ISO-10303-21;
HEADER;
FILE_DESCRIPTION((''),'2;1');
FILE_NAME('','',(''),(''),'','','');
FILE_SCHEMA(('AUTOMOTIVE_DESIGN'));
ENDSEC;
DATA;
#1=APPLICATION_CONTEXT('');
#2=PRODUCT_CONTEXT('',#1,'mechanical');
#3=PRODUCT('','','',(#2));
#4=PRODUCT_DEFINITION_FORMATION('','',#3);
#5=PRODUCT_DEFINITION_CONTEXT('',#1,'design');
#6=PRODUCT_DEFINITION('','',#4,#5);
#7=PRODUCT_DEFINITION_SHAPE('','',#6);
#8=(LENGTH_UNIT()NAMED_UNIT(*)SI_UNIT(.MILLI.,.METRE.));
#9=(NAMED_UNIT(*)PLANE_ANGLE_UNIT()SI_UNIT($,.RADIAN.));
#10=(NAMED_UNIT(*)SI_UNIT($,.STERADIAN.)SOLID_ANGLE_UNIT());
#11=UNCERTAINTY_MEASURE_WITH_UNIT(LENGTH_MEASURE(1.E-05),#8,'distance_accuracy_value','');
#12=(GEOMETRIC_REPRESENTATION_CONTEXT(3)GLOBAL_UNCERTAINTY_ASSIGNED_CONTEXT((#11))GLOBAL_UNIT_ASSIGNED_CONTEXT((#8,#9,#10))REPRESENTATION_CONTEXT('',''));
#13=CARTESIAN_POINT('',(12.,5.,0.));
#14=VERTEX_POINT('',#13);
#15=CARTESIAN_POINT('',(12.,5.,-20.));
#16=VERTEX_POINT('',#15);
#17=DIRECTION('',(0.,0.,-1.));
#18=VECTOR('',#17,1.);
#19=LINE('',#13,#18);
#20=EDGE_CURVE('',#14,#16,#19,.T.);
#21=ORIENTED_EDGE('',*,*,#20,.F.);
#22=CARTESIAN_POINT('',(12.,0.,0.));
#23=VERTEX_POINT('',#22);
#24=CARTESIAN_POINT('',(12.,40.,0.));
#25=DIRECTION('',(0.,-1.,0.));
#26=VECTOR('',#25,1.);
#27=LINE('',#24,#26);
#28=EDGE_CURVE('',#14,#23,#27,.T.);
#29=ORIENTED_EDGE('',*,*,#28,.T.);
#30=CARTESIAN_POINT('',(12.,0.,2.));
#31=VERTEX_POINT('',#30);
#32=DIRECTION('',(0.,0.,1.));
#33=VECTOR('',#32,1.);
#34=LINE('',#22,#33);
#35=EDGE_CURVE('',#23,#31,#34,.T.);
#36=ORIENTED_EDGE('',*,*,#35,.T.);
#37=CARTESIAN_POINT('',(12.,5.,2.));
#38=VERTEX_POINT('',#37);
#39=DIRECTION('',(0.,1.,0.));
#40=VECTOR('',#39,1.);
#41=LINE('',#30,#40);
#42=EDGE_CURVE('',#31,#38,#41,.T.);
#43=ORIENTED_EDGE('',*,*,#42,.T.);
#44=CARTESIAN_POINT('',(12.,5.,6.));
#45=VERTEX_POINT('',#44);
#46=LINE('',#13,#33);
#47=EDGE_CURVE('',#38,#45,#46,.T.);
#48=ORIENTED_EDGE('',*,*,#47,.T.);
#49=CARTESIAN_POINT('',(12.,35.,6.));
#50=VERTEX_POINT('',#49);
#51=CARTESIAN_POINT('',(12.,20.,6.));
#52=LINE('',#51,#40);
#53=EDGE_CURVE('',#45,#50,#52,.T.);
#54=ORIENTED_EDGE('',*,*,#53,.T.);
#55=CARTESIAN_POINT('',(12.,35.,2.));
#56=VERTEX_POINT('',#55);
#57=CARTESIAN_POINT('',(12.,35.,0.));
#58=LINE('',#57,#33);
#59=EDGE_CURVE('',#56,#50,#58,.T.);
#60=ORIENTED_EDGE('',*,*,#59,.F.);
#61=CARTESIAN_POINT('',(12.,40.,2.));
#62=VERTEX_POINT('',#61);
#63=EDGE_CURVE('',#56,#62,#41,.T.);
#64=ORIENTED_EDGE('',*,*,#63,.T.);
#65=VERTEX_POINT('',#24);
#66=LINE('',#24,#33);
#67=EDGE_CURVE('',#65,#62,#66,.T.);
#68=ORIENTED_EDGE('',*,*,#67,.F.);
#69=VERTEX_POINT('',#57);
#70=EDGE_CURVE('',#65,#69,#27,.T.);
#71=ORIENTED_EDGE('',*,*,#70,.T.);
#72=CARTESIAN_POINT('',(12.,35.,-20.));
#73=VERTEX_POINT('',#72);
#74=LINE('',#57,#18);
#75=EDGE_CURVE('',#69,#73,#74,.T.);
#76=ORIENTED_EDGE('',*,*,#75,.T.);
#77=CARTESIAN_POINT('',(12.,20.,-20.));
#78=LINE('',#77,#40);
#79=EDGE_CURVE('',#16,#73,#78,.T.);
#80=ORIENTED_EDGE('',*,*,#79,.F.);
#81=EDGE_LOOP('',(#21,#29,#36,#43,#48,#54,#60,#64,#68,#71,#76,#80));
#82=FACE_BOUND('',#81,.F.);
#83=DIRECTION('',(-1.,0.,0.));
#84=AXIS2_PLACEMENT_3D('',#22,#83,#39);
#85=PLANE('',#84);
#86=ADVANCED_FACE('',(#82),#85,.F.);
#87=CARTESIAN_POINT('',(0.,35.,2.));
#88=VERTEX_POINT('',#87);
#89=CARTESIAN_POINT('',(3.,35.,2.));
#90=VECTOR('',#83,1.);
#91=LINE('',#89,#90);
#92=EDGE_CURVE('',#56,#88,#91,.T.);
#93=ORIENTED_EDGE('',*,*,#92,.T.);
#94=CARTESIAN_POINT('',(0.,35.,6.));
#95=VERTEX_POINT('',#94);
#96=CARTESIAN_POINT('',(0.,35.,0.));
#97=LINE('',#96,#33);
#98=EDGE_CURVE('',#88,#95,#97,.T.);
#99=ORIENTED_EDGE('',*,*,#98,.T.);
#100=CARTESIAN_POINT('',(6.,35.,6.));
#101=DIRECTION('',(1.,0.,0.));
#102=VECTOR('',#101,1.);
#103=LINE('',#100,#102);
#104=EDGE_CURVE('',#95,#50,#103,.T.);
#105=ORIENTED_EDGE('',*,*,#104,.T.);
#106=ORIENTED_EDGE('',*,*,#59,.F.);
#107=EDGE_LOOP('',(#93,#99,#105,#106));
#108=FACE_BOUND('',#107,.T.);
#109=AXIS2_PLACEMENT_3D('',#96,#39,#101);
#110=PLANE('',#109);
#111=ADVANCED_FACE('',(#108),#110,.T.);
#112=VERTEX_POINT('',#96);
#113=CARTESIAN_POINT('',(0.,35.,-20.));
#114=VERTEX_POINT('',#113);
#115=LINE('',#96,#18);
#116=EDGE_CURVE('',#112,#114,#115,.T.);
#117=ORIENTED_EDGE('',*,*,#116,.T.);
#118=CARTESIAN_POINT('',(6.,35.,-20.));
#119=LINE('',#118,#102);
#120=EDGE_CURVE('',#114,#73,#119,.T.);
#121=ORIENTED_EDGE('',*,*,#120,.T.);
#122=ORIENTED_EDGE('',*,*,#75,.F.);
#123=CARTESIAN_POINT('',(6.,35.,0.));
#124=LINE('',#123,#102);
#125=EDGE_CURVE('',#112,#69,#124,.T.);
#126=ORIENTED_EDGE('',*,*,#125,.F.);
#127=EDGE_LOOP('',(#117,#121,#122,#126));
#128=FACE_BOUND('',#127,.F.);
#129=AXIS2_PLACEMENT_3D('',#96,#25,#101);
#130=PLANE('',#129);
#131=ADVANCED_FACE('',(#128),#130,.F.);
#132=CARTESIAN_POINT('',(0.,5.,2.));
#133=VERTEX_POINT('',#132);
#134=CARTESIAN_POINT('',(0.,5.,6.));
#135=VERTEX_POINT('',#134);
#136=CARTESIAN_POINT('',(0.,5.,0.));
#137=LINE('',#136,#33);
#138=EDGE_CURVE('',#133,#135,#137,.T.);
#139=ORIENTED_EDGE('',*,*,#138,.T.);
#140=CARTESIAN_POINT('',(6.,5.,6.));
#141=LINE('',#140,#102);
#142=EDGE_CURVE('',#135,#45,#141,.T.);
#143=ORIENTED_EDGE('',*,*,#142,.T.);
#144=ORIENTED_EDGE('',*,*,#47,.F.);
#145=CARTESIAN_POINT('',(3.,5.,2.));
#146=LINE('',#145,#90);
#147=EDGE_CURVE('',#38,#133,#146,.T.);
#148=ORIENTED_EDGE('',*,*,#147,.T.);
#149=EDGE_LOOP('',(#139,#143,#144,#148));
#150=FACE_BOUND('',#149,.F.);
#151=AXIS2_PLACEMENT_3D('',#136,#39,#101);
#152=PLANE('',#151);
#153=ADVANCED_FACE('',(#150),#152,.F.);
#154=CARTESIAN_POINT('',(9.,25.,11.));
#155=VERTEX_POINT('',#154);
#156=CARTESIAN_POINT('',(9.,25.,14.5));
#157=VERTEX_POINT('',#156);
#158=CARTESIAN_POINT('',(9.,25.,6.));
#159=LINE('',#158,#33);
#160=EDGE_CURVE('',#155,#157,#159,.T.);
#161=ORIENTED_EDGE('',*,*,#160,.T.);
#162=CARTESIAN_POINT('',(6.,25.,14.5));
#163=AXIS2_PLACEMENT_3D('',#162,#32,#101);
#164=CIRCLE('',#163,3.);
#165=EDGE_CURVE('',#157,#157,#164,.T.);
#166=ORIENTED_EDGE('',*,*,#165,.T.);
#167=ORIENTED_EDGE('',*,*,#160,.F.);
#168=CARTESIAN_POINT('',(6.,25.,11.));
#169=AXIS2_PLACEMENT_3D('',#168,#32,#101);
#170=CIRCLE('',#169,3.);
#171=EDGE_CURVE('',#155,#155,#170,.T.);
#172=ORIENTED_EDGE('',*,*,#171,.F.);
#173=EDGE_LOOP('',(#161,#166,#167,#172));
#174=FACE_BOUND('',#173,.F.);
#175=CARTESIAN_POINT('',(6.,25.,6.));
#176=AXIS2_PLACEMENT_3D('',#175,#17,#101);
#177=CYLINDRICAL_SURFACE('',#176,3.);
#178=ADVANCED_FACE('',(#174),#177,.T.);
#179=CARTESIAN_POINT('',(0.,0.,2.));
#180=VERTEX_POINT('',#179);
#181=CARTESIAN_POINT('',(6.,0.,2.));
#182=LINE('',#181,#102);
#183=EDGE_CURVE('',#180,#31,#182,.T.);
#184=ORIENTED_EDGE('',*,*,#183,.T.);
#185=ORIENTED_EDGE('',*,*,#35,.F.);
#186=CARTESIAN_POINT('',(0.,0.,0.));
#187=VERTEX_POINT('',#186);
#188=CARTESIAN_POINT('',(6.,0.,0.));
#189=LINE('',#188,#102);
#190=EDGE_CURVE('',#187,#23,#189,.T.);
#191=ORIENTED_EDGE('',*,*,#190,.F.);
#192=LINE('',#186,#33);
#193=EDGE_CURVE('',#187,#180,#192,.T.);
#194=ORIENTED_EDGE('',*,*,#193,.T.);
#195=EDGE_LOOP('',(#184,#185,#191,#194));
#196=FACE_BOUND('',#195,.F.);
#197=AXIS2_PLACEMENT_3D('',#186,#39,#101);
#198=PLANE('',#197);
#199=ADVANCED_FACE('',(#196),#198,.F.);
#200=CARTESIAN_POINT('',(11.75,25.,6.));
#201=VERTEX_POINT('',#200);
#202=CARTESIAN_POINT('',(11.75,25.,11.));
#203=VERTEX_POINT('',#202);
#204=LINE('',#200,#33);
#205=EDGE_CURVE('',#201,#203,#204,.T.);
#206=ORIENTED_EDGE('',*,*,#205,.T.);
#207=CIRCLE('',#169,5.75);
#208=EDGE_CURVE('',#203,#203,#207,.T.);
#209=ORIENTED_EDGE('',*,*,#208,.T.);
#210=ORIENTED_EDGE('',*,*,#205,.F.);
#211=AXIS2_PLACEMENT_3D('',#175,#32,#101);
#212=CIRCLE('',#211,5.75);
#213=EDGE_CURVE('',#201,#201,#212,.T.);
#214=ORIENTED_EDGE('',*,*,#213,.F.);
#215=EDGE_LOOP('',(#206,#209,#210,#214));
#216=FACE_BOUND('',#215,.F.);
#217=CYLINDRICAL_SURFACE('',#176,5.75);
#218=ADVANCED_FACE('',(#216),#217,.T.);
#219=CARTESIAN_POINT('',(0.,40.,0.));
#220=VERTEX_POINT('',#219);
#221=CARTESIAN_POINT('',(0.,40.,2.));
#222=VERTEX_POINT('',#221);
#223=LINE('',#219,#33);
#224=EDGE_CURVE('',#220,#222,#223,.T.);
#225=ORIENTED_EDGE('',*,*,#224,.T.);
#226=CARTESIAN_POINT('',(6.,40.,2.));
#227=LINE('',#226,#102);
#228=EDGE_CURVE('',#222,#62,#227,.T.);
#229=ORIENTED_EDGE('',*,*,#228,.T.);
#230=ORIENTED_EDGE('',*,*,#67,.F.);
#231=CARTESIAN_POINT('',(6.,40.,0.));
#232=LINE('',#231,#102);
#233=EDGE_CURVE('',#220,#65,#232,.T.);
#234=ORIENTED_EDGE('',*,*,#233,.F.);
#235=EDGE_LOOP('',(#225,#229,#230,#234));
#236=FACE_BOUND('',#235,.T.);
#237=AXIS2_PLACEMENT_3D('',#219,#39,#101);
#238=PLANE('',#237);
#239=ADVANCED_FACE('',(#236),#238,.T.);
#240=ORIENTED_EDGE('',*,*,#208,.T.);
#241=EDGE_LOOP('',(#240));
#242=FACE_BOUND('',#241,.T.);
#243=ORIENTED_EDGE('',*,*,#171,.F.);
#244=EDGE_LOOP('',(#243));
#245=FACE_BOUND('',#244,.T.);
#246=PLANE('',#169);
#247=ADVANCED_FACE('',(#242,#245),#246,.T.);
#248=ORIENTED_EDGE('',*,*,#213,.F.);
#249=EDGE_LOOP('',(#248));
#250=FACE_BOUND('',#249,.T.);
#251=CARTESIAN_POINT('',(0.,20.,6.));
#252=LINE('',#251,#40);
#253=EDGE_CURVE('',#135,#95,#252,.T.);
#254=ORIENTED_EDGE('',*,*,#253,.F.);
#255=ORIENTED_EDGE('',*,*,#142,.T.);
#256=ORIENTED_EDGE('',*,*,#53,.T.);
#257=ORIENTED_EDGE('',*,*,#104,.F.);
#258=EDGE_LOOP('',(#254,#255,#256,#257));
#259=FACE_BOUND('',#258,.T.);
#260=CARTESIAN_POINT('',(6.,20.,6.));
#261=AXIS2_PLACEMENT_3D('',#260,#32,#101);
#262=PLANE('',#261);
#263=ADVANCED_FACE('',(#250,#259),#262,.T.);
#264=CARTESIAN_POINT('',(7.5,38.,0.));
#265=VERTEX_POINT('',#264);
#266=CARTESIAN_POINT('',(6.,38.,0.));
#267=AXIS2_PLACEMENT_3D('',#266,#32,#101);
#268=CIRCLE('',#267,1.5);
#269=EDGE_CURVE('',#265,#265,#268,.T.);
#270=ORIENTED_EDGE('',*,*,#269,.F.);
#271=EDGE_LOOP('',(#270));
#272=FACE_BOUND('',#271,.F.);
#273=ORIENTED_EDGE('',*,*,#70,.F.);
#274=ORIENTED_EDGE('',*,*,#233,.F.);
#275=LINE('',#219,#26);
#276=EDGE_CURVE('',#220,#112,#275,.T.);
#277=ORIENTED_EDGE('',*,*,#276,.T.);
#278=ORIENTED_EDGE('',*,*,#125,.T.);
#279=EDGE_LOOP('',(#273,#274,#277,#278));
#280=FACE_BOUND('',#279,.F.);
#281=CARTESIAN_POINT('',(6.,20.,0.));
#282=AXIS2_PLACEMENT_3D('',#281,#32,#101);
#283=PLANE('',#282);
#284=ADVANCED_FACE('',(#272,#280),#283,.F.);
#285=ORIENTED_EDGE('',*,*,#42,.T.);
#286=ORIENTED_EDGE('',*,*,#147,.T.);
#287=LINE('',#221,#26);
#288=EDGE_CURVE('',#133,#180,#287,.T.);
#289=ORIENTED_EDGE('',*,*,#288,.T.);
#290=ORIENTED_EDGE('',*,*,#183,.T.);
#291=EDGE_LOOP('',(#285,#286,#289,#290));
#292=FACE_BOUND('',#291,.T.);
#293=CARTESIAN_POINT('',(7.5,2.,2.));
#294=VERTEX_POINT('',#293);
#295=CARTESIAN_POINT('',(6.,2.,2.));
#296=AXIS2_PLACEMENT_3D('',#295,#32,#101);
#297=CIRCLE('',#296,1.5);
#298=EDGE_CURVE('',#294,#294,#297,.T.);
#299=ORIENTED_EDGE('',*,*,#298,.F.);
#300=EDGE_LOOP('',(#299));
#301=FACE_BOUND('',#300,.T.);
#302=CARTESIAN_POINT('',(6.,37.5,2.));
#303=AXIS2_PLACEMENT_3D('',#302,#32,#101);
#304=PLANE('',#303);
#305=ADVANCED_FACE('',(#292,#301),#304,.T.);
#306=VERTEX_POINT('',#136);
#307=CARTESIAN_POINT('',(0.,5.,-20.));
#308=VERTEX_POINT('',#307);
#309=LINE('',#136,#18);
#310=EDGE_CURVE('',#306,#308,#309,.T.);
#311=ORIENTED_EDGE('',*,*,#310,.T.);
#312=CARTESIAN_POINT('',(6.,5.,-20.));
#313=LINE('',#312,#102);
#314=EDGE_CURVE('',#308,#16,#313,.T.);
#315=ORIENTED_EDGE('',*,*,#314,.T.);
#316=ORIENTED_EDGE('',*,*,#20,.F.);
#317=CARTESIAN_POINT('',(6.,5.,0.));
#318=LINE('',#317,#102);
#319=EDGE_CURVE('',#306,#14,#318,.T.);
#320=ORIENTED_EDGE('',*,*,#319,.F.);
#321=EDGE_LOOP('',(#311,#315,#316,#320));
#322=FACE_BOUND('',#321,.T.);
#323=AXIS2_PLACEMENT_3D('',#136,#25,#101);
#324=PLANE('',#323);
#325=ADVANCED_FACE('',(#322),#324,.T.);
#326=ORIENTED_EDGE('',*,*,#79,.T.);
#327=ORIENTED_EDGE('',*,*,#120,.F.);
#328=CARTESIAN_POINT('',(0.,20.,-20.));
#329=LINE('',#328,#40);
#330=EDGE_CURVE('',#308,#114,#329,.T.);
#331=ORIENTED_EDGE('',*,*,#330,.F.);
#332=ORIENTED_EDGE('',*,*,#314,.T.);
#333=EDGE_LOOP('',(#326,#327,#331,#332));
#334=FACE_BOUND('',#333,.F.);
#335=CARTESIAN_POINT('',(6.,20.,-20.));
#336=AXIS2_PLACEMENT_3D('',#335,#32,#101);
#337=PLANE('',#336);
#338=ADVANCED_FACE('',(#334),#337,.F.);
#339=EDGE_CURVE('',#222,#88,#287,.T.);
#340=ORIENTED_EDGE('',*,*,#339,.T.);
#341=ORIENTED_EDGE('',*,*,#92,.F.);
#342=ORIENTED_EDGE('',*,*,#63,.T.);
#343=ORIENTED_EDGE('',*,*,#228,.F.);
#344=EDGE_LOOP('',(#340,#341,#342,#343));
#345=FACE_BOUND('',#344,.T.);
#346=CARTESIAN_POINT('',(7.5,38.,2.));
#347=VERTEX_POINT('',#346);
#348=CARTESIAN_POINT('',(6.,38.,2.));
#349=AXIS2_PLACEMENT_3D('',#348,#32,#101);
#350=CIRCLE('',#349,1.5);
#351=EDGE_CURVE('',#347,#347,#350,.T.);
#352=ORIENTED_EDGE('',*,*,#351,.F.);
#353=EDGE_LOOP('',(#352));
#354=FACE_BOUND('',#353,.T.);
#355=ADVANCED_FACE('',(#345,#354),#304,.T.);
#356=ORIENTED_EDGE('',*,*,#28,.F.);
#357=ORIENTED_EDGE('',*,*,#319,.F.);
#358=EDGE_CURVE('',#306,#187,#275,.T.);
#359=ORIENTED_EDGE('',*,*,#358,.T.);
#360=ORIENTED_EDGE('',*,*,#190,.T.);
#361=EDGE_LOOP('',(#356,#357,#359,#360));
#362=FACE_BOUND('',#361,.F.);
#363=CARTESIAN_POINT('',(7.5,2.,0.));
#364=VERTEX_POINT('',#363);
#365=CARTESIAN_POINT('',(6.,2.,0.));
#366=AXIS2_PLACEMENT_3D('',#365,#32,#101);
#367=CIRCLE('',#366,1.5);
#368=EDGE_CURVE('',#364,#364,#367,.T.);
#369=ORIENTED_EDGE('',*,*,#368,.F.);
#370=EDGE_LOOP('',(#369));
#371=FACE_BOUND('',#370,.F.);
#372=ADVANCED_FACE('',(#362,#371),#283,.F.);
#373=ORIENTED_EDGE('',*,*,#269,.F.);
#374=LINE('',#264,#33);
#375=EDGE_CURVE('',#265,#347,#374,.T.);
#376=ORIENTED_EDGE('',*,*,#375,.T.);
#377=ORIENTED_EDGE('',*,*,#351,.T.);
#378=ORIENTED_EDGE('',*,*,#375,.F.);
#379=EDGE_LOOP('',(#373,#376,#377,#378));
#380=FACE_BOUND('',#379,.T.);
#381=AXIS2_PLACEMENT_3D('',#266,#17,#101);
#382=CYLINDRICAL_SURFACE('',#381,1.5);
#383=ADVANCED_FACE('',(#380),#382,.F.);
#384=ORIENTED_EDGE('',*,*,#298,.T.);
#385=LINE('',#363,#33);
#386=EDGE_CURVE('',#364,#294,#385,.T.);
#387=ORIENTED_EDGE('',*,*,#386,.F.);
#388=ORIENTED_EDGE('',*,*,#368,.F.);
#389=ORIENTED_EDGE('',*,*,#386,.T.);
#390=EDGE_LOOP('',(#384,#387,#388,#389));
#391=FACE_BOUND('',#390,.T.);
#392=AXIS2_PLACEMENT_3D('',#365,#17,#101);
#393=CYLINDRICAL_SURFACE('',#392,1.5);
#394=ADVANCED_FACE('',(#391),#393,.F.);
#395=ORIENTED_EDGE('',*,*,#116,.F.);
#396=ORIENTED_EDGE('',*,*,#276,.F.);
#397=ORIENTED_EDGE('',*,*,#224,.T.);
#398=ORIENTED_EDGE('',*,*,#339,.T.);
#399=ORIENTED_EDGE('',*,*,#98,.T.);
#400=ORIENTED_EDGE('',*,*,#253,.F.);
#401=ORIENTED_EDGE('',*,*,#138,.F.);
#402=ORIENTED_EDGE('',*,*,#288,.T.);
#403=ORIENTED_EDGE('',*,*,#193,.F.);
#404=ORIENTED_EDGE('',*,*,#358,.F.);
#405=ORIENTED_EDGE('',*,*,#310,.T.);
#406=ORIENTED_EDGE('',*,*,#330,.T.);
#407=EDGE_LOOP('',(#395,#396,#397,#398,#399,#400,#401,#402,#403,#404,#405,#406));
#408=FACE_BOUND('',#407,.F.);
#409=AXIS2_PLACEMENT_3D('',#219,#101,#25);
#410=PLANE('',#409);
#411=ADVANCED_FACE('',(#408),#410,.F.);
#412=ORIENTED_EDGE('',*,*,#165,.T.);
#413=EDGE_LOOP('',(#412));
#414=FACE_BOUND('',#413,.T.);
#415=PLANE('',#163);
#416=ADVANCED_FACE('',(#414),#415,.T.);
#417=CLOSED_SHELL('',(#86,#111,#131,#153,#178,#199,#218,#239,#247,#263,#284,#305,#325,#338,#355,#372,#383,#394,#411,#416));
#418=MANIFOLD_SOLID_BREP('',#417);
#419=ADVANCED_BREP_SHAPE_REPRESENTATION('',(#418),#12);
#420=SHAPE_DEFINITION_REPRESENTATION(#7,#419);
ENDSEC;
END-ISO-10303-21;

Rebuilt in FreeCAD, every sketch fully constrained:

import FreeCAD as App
import Part
import Sketcher

V = App.Vector
Q = App.Units.Quantity


def add_polygon(sketch, points):
    """Adds a closed chain of lines whose ends are joined by coincident constraints."""
    first, n = sketch.GeometryCount, len(points)
    for a, b in zip(points, points[1:] + points[:1]):
        sketch.addGeometry(Part.LineSegment(App.Vector(*a, 0), App.Vector(*b, 0)), False)
    for i in range(n):
        sketch.addConstraint(Sketcher.Constraint("Coincident", first + i, 2, first + (i + 1) % n, 1))

doc = App.newDocument("Part")
params = doc.addObject("Spreadsheet::Sheet", "Params")
for row, (alias, value) in enumerate([
    ("sketch1_diameter", "3 mm"),
    ("sketch1_width", "12 mm"),
    ("sketch1_height", "40 mm"),
    ("pad1_length", "2 mm"),
    ("sketch2_width", "12 mm"),
    ("sketch2_height", "30 mm"),
    ("pad2_length", "6 mm"),
    ("sketch3_width", "12 mm"),
    ("sketch3_height", "30 mm"),
    ("pad3_length", "20 mm"),
    ("sketch4_diameter", "6 mm"),
    ("pad4_length", "8.5 mm"),
    ("sketch5_diameter", "6 mm"),
    ("sketch5_diameter2", "11.5 mm"),
    ("pad5_length", "5 mm"),
], start=1):
    params.set(f"A{row}", alias)
    params.set(f"B{row}", "=" + value)
    params.setAlias(f"B{row}", alias)

body = doc.addObject("PartDesign::Body", "Body")

# Sketch on XY plane
sketch1 = doc.addObject("Sketcher::SketchObject", "Sketch")
body.addObject(sketch1)
sketch1.AttachmentSupport = (doc.XY_Plane, [""])
sketch1.MapMode = "FlatFace"
add_polygon(sketch1, [(0, 40), (0, 0), (12, 0), (12, 40)])  # lines 0-3
sketch1.addGeometry(Part.Circle(V(6, 2, 0), V(0, 0, 1), 1.5), False)  # 4
sketch1.addGeometry(Part.Circle(V(6, 38, 0), V(0, 0, 1), 1.5), False)  # 5
sketch1.addConstraint([
    Sketcher.Constraint("Vertical", 0),
    Sketcher.Constraint("Horizontal", 1),
    Sketcher.Constraint("Vertical", 2),
    Sketcher.Constraint("Horizontal", 3),
    Sketcher.Constraint("Coincident", 0, 2, -1, 1),
    Sketcher.Constraint("Equal", 4, 5),
    Sketcher.Constraint("Vertical", 4, 3, 5, 3),
    Sketcher.Constraint("Diameter", 4, Q("3 mm")),
    Sketcher.Constraint("DistanceX", 1, 1, 1, 2, Q("12 mm")),
    Sketcher.Constraint("DistanceY", 0, 2, 0, 1, Q("40 mm")),
    Sketcher.Constraint("DistanceX", -1, 1, 4, 3, Q("6 mm")),
    Sketcher.Constraint("DistanceY", -1, 1, 4, 3, Q("2 mm")),
    Sketcher.Constraint("DistanceY", -1, 1, 5, 3, Q("38 mm")),
])
sketch1.setExpression("Constraints[11]", "Params.sketch1_diameter")
sketch1.setExpression("Constraints[12]", "Params.sketch1_width")
sketch1.setExpression("Constraints[13]", "Params.sketch1_height")
pad1 = doc.addObject("PartDesign::Pad", "Pad")
body.addObject(pad1)
pad1.Profile = sketch1
pad1.setExpression("Length", "Params.pad1_length")

# Sketch on XY plane
sketch2 = doc.addObject("Sketcher::SketchObject", "Sketch001")
body.addObject(sketch2)
sketch2.AttachmentSupport = (doc.XY_Plane, [""])
sketch2.MapMode = "FlatFace"
add_polygon(sketch2, [(0, 35), (0, 5), (12, 5), (12, 35)])  # lines 0-3
sketch2.addConstraint([
    Sketcher.Constraint("Vertical", 0),
    Sketcher.Constraint("Horizontal", 1),
    Sketcher.Constraint("Vertical", 2),
    Sketcher.Constraint("Horizontal", 3),
    Sketcher.Constraint("PointOnObject", 0, 2, -2),
    Sketcher.Constraint("DistanceX", 1, 1, 1, 2, Q("12 mm")),
    Sketcher.Constraint("DistanceY", 0, 2, 0, 1, Q("30 mm")),
    Sketcher.Constraint("DistanceY", -1, 1, 0, 2, Q("5 mm")),
])
sketch2.setExpression("Constraints[9]", "Params.sketch2_width")
sketch2.setExpression("Constraints[10]", "Params.sketch2_height")
pad2 = doc.addObject("PartDesign::Pad", "Pad001")
body.addObject(pad2)
pad2.Profile = sketch2
pad2.setExpression("Length", "Params.pad2_length")

# Sketch on XY plane
sketch3 = doc.addObject("Sketcher::SketchObject", "Sketch002")
body.addObject(sketch3)
sketch3.AttachmentSupport = (doc.XY_Plane, [""])
sketch3.MapMode = "FlatFace"
add_polygon(sketch3, [(0, 35), (0, 5), (12, 5), (12, 35)])  # lines 0-3
sketch3.addConstraint([
    Sketcher.Constraint("Vertical", 0),
    Sketcher.Constraint("Horizontal", 1),
    Sketcher.Constraint("Vertical", 2),
    Sketcher.Constraint("Horizontal", 3),
    Sketcher.Constraint("PointOnObject", 0, 2, -2),
    Sketcher.Constraint("DistanceX", 1, 1, 1, 2, Q("12 mm")),
    Sketcher.Constraint("DistanceY", 0, 2, 0, 1, Q("30 mm")),
    Sketcher.Constraint("DistanceY", -1, 1, 0, 2, Q("5 mm")),
])
sketch3.setExpression("Constraints[9]", "Params.sketch3_width")
sketch3.setExpression("Constraints[10]", "Params.sketch3_height")
pad3 = doc.addObject("PartDesign::Pad", "Pad002")
body.addObject(pad3)
pad3.Profile = sketch3
pad3.setExpression("Length", "Params.pad3_length")
pad3.Reversed = True

# Sketch on XY plane
sketch4 = doc.addObject("Sketcher::SketchObject", "Sketch003")
body.addObject(sketch4)
sketch4.AttachmentSupport = (doc.XY_Plane, [""])
sketch4.MapMode = "FlatFace"
sketch4.AttachmentOffset = App.Placement(V(0, 0, 6), App.Rotation())
sketch4.addGeometry(Part.Circle(V(6, 25, 0), V(0, 0, 1), 3), False)
sketch4.addConstraint([
    Sketcher.Constraint("Diameter", 0, Q("6 mm")),
    Sketcher.Constraint("DistanceX", -1, 1, 0, 3, Q("6 mm")),
    Sketcher.Constraint("DistanceY", -1, 1, 0, 3, Q("25 mm")),
])
sketch4.setExpression("Constraints[0]", "Params.sketch4_diameter")
pad4 = doc.addObject("PartDesign::Pad", "Pad003")
body.addObject(pad4)
pad4.Profile = sketch4
pad4.setExpression("Length", "Params.pad4_length")

# Sketch on XY plane
sketch5 = doc.addObject("Sketcher::SketchObject", "Sketch004")
body.addObject(sketch5)
sketch5.AttachmentSupport = (doc.XY_Plane, [""])
sketch5.MapMode = "FlatFace"
sketch5.AttachmentOffset = App.Placement(V(0, 0, 6), App.Rotation())
sketch5.addGeometry([
    Part.Circle(V(6, 25, 0), V(0, 0, 1), 5.8),
    Part.Circle(V(6, 25, 0), V(0, 0, 1), 3),
], False)
sketch5.addConstraint([
    Sketcher.Constraint("Coincident", 1, 3, 0, 3),
    Sketcher.Constraint("Diameter", 1, Q("6 mm")),
    Sketcher.Constraint("Diameter", 0, Q("11.5 mm")),
    Sketcher.Constraint("DistanceX", -1, 1, 0, 3, Q("6 mm")),
    Sketcher.Constraint("DistanceY", -1, 1, 0, 3, Q("25 mm")),
])
sketch5.setExpression("Constraints[1]", "Params.sketch5_diameter")
sketch5.setExpression("Constraints[2]", "Params.sketch5_diameter2")
pad5 = doc.addObject("PartDesign::Pad", "Pad004")
body.addObject(pad5)
pad5.Profile = sketch5
pad5.setExpression("Length", "Params.pad5_length")

doc.recompute()
